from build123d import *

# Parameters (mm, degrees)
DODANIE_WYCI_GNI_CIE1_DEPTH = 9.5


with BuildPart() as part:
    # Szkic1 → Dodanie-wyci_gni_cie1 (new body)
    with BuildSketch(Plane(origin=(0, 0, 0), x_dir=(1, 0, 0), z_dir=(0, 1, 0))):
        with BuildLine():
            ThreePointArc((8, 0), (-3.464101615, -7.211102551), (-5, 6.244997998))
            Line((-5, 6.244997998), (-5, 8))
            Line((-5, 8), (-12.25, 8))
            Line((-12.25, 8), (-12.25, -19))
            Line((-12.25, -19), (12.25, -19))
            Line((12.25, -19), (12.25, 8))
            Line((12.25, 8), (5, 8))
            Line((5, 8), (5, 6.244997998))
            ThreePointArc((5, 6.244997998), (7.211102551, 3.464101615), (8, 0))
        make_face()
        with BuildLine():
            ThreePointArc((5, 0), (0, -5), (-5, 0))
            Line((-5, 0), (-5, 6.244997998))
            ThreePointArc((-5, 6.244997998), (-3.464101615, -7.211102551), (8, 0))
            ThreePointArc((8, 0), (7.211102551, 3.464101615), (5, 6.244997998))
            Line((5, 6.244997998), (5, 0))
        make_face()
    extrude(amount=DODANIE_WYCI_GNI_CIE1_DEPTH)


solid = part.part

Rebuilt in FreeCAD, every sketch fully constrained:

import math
import FreeCAD as App
import Part
import Sketcher

V = App.Vector
Q = App.Units.Quantity

doc = App.newDocument("Part")
body = doc.addObject("PartDesign::Body", "Body")

# Sketch on XZ plane
sketch1 = body.newObject("Sketcher::SketchObject", "Sketch")
sketch1.AttachmentSupport = (doc.getObject("XZ_Plane"), [""])
sketch1.MapMode = "FlatFace"
sketch1.addGeometry([
    Part.LineSegment(V(-5, -8, 0), V(-12, -8, 0)),  # 0
    Part.LineSegment(V(-12, -8, 0), V(-12, 19, 0)),  # 1
    Part.LineSegment(V(-12, 19, 0), V(12, 19, 0)),  # 2
    Part.LineSegment(V(12, 19, 0), V(12, -8, 0)),  # 3
    Part.LineSegment(V(12, -8, 0), V(5, -8, 0)),  # 4
    Part.LineSegment(V(5, -8, 0), V(5, 0, 0)),  # 5
    Part.ArcOfCircle(Part.Circle(V(0, 0, 0), V(0, 0, 1), 5), math.radians(0), math.radians(180)),  # 6
    Part.LineSegment(V(-5, 0, 0), V(-5, -8, 0)),  # 7
], False)
sketch1.addConstraint([
    Sketcher.Constraint("Coincident", 0, 2, 1, 1),
    Sketcher.Constraint("Coincident", 1, 2, 2, 1),
    Sketcher.Constraint("Coincident", 2, 2, 3, 1),
    Sketcher.Constraint("Coincident", 3, 2, 4, 1),
    Sketcher.Constraint("Coincident", 4, 2, 5, 1),
    Sketcher.Constraint("Tangent", 5, 2, 6, 1),
    Sketcher.Constraint("Tangent", 6, 2, 7, 1),
    Sketcher.Constraint("Coincident", 7, 2, 0, 1),
    Sketcher.Constraint("Horizontal", 0),
    Sketcher.Constraint("Vertical", 1),
    Sketcher.Constraint("Horizontal", 2),
    Sketcher.Constraint("Vertical", 3),
    Sketcher.Constraint("Horizontal", 4),
    Sketcher.Constraint("Vertical", 5),
    Sketcher.Constraint("Vertical", 7),
    Sketcher.Constraint("Coincident", 6, 3, -1, 1),
    Sketcher.Constraint("Symmetric", 0, 2, 3, 2, -2),
    Sketcher.Constraint("Radius", 6, Q("5 mm")),
    Sketcher.Constraint("DistanceY", 1, 1, 1, 2, Q("27 mm")),
    Sketcher.Constraint("DistanceY", 5, 1, 5, 2, Q("8 mm")),
    Sketcher.Constraint("DistanceX", 2, 1, 2, 2, Q("24.5 mm")),
])
pad1 = body.newObject("PartDesign::Pad", "Pad")
pad1.Profile = sketch1
pad1.Length = 9.5
pad1.Reversed = True

doc.recompute()
